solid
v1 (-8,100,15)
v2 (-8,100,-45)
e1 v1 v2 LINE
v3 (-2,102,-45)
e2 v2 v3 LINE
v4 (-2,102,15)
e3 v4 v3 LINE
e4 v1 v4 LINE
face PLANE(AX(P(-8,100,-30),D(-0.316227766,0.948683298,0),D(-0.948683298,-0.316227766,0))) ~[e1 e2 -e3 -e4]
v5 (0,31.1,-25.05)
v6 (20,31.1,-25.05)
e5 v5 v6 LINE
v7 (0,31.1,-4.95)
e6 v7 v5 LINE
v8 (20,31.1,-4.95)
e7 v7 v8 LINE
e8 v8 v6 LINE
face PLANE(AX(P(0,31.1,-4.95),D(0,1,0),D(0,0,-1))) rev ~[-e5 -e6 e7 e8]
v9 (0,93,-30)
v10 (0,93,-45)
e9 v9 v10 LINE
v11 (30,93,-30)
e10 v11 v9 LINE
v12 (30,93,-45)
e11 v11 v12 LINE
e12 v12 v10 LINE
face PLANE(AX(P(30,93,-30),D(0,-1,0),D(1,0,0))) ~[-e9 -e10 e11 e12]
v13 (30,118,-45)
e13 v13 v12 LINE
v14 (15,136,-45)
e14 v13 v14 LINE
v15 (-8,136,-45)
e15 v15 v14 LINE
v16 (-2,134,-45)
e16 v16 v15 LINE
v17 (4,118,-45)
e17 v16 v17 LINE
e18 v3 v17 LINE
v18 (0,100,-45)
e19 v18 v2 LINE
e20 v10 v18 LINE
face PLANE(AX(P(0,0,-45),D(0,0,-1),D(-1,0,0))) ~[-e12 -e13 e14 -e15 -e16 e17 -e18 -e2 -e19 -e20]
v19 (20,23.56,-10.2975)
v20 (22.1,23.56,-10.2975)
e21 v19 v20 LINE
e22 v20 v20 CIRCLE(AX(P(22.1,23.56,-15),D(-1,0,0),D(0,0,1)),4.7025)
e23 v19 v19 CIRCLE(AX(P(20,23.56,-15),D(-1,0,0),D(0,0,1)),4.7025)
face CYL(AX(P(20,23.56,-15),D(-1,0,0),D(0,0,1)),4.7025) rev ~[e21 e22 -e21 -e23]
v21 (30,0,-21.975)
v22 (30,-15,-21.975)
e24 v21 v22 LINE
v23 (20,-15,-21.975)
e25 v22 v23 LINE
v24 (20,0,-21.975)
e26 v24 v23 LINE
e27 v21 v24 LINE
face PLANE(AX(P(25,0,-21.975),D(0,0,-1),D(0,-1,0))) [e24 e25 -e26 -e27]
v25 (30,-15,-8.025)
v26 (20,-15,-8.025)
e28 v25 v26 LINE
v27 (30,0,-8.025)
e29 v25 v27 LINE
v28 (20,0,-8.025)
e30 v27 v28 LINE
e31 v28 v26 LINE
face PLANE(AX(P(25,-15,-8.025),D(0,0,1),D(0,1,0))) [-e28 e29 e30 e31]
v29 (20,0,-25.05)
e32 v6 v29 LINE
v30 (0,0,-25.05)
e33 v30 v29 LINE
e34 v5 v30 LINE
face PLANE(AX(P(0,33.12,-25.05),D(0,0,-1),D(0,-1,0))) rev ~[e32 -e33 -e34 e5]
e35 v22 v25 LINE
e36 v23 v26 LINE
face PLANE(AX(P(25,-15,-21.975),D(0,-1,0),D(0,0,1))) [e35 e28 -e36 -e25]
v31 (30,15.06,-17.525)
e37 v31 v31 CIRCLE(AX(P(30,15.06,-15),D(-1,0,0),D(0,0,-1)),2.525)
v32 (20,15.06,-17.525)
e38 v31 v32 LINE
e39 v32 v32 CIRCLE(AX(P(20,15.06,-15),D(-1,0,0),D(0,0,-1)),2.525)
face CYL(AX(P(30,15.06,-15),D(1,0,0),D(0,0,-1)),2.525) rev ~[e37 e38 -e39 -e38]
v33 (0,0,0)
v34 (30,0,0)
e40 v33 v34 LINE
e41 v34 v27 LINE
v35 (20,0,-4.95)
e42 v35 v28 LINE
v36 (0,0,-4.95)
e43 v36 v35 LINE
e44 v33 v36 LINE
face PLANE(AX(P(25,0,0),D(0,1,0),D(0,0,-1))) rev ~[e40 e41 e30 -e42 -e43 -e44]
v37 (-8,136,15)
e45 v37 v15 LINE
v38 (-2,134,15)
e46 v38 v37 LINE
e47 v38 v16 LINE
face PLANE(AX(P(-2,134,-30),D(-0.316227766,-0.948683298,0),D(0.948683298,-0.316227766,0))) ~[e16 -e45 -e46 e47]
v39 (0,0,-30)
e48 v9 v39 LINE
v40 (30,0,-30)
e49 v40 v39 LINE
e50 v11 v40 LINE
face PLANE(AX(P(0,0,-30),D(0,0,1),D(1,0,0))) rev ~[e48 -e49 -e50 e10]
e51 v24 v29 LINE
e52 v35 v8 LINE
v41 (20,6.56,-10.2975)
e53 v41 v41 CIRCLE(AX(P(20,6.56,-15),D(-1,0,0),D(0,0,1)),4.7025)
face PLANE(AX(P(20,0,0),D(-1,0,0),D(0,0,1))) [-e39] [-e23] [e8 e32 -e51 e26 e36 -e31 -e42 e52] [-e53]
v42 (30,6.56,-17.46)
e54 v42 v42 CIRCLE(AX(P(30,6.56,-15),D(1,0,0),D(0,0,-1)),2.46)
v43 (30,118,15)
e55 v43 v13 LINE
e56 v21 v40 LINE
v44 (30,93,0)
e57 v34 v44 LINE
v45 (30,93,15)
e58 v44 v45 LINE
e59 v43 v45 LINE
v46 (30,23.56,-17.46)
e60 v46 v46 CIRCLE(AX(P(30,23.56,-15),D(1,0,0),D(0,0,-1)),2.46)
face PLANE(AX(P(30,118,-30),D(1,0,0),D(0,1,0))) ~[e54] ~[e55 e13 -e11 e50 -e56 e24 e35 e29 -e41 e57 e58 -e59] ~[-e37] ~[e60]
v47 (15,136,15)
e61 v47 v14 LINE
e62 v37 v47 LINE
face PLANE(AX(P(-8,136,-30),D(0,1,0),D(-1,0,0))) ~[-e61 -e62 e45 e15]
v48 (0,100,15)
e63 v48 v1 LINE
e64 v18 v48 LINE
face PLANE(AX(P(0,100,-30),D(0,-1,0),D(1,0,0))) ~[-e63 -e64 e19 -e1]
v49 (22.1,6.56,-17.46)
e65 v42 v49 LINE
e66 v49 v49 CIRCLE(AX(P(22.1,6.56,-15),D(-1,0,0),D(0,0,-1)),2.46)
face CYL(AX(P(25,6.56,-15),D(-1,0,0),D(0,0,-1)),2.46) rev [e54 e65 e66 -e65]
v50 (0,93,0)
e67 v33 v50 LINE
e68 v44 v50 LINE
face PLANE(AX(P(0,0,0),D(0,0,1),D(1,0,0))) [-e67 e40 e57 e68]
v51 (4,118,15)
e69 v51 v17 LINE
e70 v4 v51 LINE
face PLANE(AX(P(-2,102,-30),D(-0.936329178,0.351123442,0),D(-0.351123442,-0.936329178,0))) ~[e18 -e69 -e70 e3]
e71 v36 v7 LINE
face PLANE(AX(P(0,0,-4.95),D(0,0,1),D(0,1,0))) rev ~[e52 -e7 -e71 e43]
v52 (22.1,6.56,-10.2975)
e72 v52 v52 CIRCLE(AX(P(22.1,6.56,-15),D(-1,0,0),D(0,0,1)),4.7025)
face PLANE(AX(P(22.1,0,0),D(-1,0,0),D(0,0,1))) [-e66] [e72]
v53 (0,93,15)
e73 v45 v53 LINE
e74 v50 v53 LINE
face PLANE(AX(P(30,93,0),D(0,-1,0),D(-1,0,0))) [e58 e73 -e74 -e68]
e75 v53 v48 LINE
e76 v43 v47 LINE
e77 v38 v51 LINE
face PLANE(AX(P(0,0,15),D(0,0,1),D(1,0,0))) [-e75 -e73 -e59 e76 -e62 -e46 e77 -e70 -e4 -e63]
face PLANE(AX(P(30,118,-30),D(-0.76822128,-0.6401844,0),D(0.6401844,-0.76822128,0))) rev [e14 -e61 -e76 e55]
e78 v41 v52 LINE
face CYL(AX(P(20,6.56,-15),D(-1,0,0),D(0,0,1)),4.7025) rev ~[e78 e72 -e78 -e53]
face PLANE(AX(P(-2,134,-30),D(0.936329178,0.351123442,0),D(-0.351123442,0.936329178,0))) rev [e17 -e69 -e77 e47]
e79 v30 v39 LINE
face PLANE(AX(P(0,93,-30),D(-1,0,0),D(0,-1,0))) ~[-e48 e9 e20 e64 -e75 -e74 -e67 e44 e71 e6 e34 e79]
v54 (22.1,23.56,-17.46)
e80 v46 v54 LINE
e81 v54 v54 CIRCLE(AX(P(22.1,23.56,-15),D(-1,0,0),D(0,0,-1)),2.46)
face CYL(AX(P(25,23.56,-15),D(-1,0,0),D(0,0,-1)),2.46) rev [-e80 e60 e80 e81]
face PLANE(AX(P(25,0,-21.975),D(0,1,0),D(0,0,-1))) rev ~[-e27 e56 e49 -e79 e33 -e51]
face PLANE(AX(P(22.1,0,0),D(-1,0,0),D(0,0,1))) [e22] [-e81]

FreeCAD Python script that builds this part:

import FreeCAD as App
import Part
import Sketcher

V = App.Vector
Q = App.Units.Quantity


def add_polygon(sketch, points):
    """Adds a closed chain of lines whose ends are joined by coincident constraints."""
    first, n = sketch.GeometryCount, len(points)
    for a, b in zip(points, points[1:] + points[:1]):
        sketch.addGeometry(Part.LineSegment(App.Vector(*a, 0), App.Vector(*b, 0)), False)
    for i in range(n):
        sketch.addConstraint(Sketcher.Constraint("Coincident", first + i, 2, first + (i + 1) % n, 1))

doc = App.newDocument("Part")
params = doc.addObject("Spreadsheet::Sheet", "Params")
for row, (alias, value) in enumerate([
    ("sketch1_width", "25 mm"),
    ("sketch1_height", "40 mm"),
    ("pad1_length", "30 mm"),
    ("sketch2_diameter", "4.92 mm"),
    ("pocket1_length", "30 mm"),
    ("sketch3_height", "20.1 mm"),
    ("sketch3_width", "33.12 mm"),
    ("pocket2_length", "20 mm"),
    ("sketch4_height", "13.95 mm"),
    ("sketch4_width", "5 mm"),
    ("pad2_length", "15 mm"),
    ("sketch5_diameter", "4.92 mm"),
    ("pocket3_length", "2.1 mm"),
    ("sketch6_diameter", "4.92 mm"),
    ("pocket4_length", "10 mm"),
    ("sketch7_diameter", "4.92 mm"),
    ("pocket5_length", "2.1 mm"),
    ("sketch8_diameter", "4.92 mm"),
    ("sketch8_width", "40 mm"),
    ("sketch8_width2", "15 mm"),
    ("sketch8_height", "30 mm"),
    ("sketch8_height2", "13.95 mm"),
    ("pad3_length", "5 mm"),
    ("sketch9_width", "30 mm"),
    ("pad4_length", "30 mm"),
    ("sketch10_diameter", "5.05 mm"),
    ("pocket6_length", "30 mm"),
    ("sketch11_width", "30 mm"),
    ("sketch11_width2", "23 mm"),
    ("sketch11_width3", "8 mm"),
    ("sketch11_height", "48 mm"),
    ("pad5_length", "30 mm"),
    ("sketch12_width", "2.02 mm"),
    ("sketch12_height", "20.1 mm"),
    ("pad6_length", "20 mm"),
    ("sketch13_height", "25 mm"),
    ("sketch13_width", "8 mm"),
    ("sketch13_width2", "30 mm"),
    ("sketch13_width3", "23 mm"),
    ("sketch13_height2", "7 mm"),
    ("pad7_length", "15 mm"),
], start=1):
    params.set(f"A{row}", alias)
    params.set(f"B{row}", "=" + value)
    params.setAlias(f"B{row}", alias)

body = doc.addObject("PartDesign::Body", "Body")

sketch1 = doc.addObject("Sketcher::SketchObject", "Sketch")
body.addObject(sketch1)
sketch1.AttachmentSupport = (doc.XY_Plane, [""])
sketch1.MapMode = "FlatFace"
add_polygon(sketch1, [(0, 40), (0, 0), (25, 0), (25, 40)])
sketch1.addConstraint([
    Sketcher.Constraint("Vertical", 0),
    Sketcher.Constraint("Horizontal", 1),
    Sketcher.Constraint("Vertical", 2),
    Sketcher.Constraint("Horizontal", 3),
    Sketcher.Constraint("Coincident", 0, 2, -1, 1),
    Sketcher.Constraint("DistanceX", 1, 1, 1, 2, Q("25 mm")),
    Sketcher.Constraint("DistanceY", 0, 2, 0, 1, Q("40 mm")),
])
sketch1.setExpression("Constraints[9]", "Params.sketch1_width")
sketch1.setExpression("Constraints[10]", "Params.sketch1_height")
pad1 = doc.addObject("PartDesign::Pad", "Pad")
body.addObject(pad1)
pad1.Profile = sketch1
pad1.setExpression("Length", "Params.pad1_length")
pad1.Reversed = True

sketch2 = doc.addObject("Sketcher::SketchObject", "Sketch001")
body.addObject(sketch2)
sketch2.AttachmentSupport = (doc.YZ_Plane, [""])
sketch2.MapMode = "FlatFace"
sketch2.AttachmentOffset = App.Placement(V(0, 0, 25), App.Rotation())
sketch2.addGeometry(Part.Circle(V(6.6, -15, 0), V(0, 0, 1), 2.5), False)
sketch2.addConstraint([
    Sketcher.Constraint("Diameter", 0, Q("4.92 mm")),
    Sketcher.Constraint("DistanceY", 0, 3, -1, 1, Q("15 mm")),
    Sketcher.Constraint("DistanceX", -1, 1, 0, 3, Q("6.56 mm")),
])
sketch2.setExpression("Constraints[0]", "Params.sketch2_diameter")
pocket1 = doc.addObject("PartDesign::Pocket", "Pocket")
body.addObject(pocket1)
pocket1.Profile = sketch2
pocket1.setExpression("Length", "Params.pocket1_length")

sketch3 = doc.addObject("Sketcher::SketchObject", "Sketch002")
body.addObject(sketch3)
sketch3.AttachmentSupport = (doc.YZ_Plane, [""])
sketch3.MapMode = "FlatFace"
add_polygon(sketch3, [(0, -25), (0, -5), (33, -5), (33, -25)])
sketch3.addConstraint([
    Sketcher.Constraint("Vertical", 0),
    Sketcher.Constraint("Horizontal", 1),
    Sketcher.Constraint("Vertical", 2),
    Sketcher.Constraint("Horizontal", 3),
    Sketcher.Constraint("PointOnObject", 0, 2, -2),
    Sketcher.Constraint("DistanceY", 0, 1, 0, 2, Q("20.1 mm")),
    Sketcher.Constraint("DistanceX", 1, 1, 1, 2, Q("33.12 mm")),
    Sketcher.Constraint("DistanceY", 0, 2, -1, 1, Q("4.95 mm")),
])
sketch3.setExpression("Constraints[9]", "Params.sketch3_height")
sketch3.setExpression("Constraints[10]", "Params.sketch3_width")
pocket2 = doc.addObject("PartDesign::Pocket", "Pocket001")
body.addObject(pocket2)
pocket2.Profile = sketch3
pocket2.setExpression("Length", "Params.pocket2_length")
pocket2.Reversed = True

sketch4 = doc.addObject("Sketcher::SketchObject", "Sketch003")
body.addObject(sketch4)
sketch4.AttachmentSupport = (doc.XZ_Plane, [""])
sketch4.MapMode = "FlatFace"
add_polygon(sketch4, [(25, -8), (20, -8), (20, -22), (25, -22)])
sketch4.addConstraint([
    Sketcher.Constraint("Horizontal", 0),
    Sketcher.Constraint("Vertical", 1),
    Sketcher.Constraint("Horizontal", 2),
    Sketcher.Constraint("Vertical", 3),
    Sketcher.Constraint("DistanceY", 1, 2, 1, 1, Q("13.95 mm")),
    Sketcher.Constraint("DistanceX", 0, 2, 0, 1, Q("5 mm")),
    Sketcher.Constraint("DistanceX", -1, 1, 0, 2, Q("20 mm")),
    Sketcher.Constraint("DistanceY", 0, 2, -1, 1, Q("8.025 mm")),
])
sketch4.setExpression("Constraints[8]", "Params.sketch4_height")
sketch4.setExpression("Constraints[9]", "Params.sketch4_width")
pad2 = doc.addObject("PartDesign::Pad", "Pad001")
body.addObject(pad2)
pad2.Profile = sketch4
pad2.setExpression("Length", "Params.pad2_length")

sketch5 = doc.addObject("Sketcher::SketchObject", "Sketch004")
body.addObject(sketch5)
sketch5.AttachmentSupport = (doc.YZ_Plane, [""])
sketch5.MapMode = "FlatFace"
sketch5.AttachmentOffset = App.Placement(V(0, 0, 20), App.Rotation())
sketch5.addGeometry([
    Part.Circle(V(6.6, -15, 0), V(0, 0, 1), 4.7),
    Part.Circle(V(6.6, -15, 0), V(0, 0, 1), 2.5),
], False)
sketch5.addConstraint([
    Sketcher.Constraint("Coincident", 1, 3, 0, 3),
    Sketcher.Constraint("Diameter", 0, Q("9.405 mm")),
    Sketcher.Constraint("Diameter", 1, Q("4.92 mm")),
    Sketcher.Constraint("DistanceY", 0, 3, -1, 1, Q("15 mm")),
    Sketcher.Constraint("DistanceX", -1, 1, 0, 3, Q("6.56 mm")),
])
sketch5.setExpression("Constraints[2]", "Params.sketch5_diameter")
pocket3 = doc.addObject("PartDesign::Pocket", "Pocket002")
body.addObject(pocket3)
pocket3.Profile = sketch5
pocket3.setExpression("Length", "Params.pocket3_length")
pocket3.Reversed = True

sketch6 = doc.addObject("Sketcher::SketchObject", "Sketch005")
body.addObject(sketch6)
sketch6.AttachmentSupport = (doc.YZ_Plane, [""])
sketch6.MapMode = "FlatFace"
sketch6.AttachmentOffset = App.Placement(V(0, 0, 25), App.Rotation())
sketch6.addGeometry(Part.Circle(V(23.6, -15, 0), V(0, 0, 1), 2.5), False)
sketch6.addConstraint([
    Sketcher.Constraint("Diameter", 0, Q("4.92 mm")),
    Sketcher.Constraint("DistanceY", 0, 3, -1, 1, Q("15 mm")),
    Sketcher.Constraint("DistanceX", -1, 1, 0, 3, Q("23.56 mm")),
])
sketch6.setExpression("Constraints[0]", "Params.sketch6_diameter")
pocket4 = doc.addObject("PartDesign::Pocket", "Pocket003")
body.addObject(pocket4)
pocket4.Profile = sketch6
pocket4.setExpression("Length", "Params.pocket4_length")

sketch7 = doc.addObject("Sketcher::SketchObject", "Sketch006")
body.addObject(sketch7)
sketch7.AttachmentSupport = (doc.YZ_Plane, [""])
sketch7.MapMode = "FlatFace"
sketch7.AttachmentOffset = App.Placement(V(0, 0, 20), App.Rotation())
sketch7.addGeometry([
    Part.Circle(V(23.6, -15, 0), V(0, 0, 1), 4.7),
    Part.Circle(V(23.6, -15, 0), V(0, 0, 1), 2.5),
], False)
sketch7.addConstraint([
    Sketcher.Constraint("Coincident", 1, 3, 0, 3),
    Sketcher.Constraint("Diameter", 0, Q("9.405 mm")),
    Sketcher.Constraint("Diameter", 1, Q("4.92 mm")),
    Sketcher.Constraint("DistanceY", 0, 3, -1, 1, Q("15 mm")),
    Sketcher.Constraint("DistanceX", -1, 1, 0, 3, Q("23.56 mm")),
])
sketch7.setExpression("Constraints[2]", "Params.sketch7_diameter")
pocket5 = doc.addObject("PartDesign::Pocket", "Pocket004")
body.addObject(pocket5)
pocket5.Profile = sketch7
pocket5.setExpression("Length", "Params.pocket5_length")
pocket5.Reversed = True

sketch8 = doc.addObject("Sketcher::SketchObject", "Sketch007")
body.addObject(sketch8)
sketch8.AttachmentSupport = (doc.YZ_Plane, [""])
sketch8.MapMode = "FlatFace"
sketch8.AttachmentOffset = App.Placement(V(0, 0, 25), App.Rotation())
add_polygon(sketch8, [(0, -30), (40, -30), (40, 0), (0, 0), (0, -8), (-15, -8), (-15, -22), (0, -22)])
sketch8.addGeometry(Part.Circle(V(6.6, -15, 0), V(0, 0, 1), 2.5), False)
sketch8.addGeometry(Part.Circle(V(23.6, -15, 0), V(0, 0, 1), 2.5), False)
sketch8.addConstraint([
    Sketcher.Constraint("Horizontal", 0),
    Sketcher.Constraint("Vertical", 1),
    Sketcher.Constraint("Horizontal", 2),
    Sketcher.Constraint("Vertical", 3),
    Sketcher.Constraint("Horizontal", 4),
    Sketcher.Constraint("Vertical", 5),
    Sketcher.Constraint("Horizontal", 6),
    Sketcher.Constraint("Vertical", 7),
    Sketcher.Constraint("Coincident", 2, 2, -1, 1),
    Sketcher.Constraint("Equal", 8, 9),
    Sketcher.Constraint("PointOnObject", 6, 2, -2),
    Sketcher.Constraint("Horizontal", 8, 3, 9, 3),
    Sketcher.Constraint("Equal", 3, 7),
    Sketcher.Constraint("Diameter", 8, Q("4.92 mm")),
    Sketcher.Constraint("DistanceX", 0, 1, 0, 2, Q("40 mm")),
    Sketcher.Constraint("DistanceX", 4, 2, 4, 1, Q("15 mm")),
    Sketcher.Constraint("DistanceY", 1, 1, 1, 2, Q("30 mm")),
    Sketcher.Constraint("DistanceY", 8, 3, -1, 1, Q("15 mm")),
    Sketcher.Constraint("DistanceX", 8, 3, 9, 3, Q("17 mm")),
    Sketcher.Constraint("DistanceY", 5, 2, 5, 1, Q("13.95 mm")),
    Sketcher.Constraint("DistanceX", -1, 1, 8, 3, Q("6.56 mm")),
])
sketch8.setExpression("Constraints[21]", "Params.sketch8_diameter")
sketch8.setExpression("Constraints[22]", "Params.sketch8_width")
sketch8.setExpression("Constraints[23]", "Params.sketch8_width2")
sketch8.setExpression("Constraints[24]", "Params.sketch8_height")
sketch8.setExpression("Constraints[27]", "Params.sketch8_height2")
pad3 = doc.addObject("PartDesign::Pad", "Pad002")
body.addObject(pad3)
pad3.Profile = sketch8
pad3.setExpression("Length", "Params.pad3_length")

sketch9 = doc.addObject("Sketcher::SketchObject", "Sketch008")
body.addObject(sketch9)
sketch9.AttachmentSupport = (doc.XZ_Plane, [""])
sketch9.MapMode = "FlatFace"
sketch9.AttachmentOffset = App.Placement(V(0, 0, -40), App.Rotation())
add_polygon(sketch9, [(30, -30), (0, -30), (0, 0), (30, 0)])
sketch9.addConstraint([
    Sketcher.Constraint("Horizontal", 0),
    Sketcher.Constraint("Vertical", 1),
    Sketcher.Constraint("Horizontal", 2),
    Sketcher.Constraint("Vertical", 3),
    Sketcher.Constraint("Coincident", 1, 2, -1, 1),
    Sketcher.Constraint("Equal", 2, 1),
    Sketcher.Constraint("DistanceX", 0, 2, 0, 1, Q("30 mm")),
])
sketch9.setExpression("Constraints[10]", "Params.sketch9_width")
pad4 = doc.addObject("PartDesign::Pad", "Pad003")
body.addObject(pad4)
pad4.Profile = sketch9
pad4.setExpression("Length", "Params.pad4_length")
pad4.Reversed = True

sketch10 = doc.addObject("Sketcher::SketchObject", "Sketch009")
body.addObject(sketch10)
sketch10.AttachmentSupport = (doc.YZ_Plane, [""])
sketch10.MapMode = "FlatFace"
sketch10.AttachmentOffset = App.Placement(V(0, 0, 30), App.Rotation())
sketch10.addGeometry(Part.Circle(V(15.1, -15, 0), V(0, 0, 1), 2.5), False)
sketch10.addConstraint([
    Sketcher.Constraint("Diameter", 0, Q("5.05 mm")),
    Sketcher.Constraint("DistanceY", 0, 3, -1, 1, Q("15 mm")),
    Sketcher.Constraint("DistanceX", -1, 1, 0, 3, Q("15.06 mm")),
])
sketch10.setExpression("Constraints[0]", "Params.sketch10_diameter")
pocket6 = doc.addObject("PartDesign::Pocket", "Pocket005")
body.addObject(pocket6)
pocket6.Profile = sketch10
pocket6.setExpression("Length", "Params.pocket6_length")

sketch11 = doc.addObject("Sketcher::SketchObject", "Sketch010")
body.addObject(sketch11)
sketch11.AttachmentSupport = (doc.XY_Plane, [""])
sketch11.MapMode = "FlatFace"
add_polygon(sketch11, [(0, 70), (30, 70), (30, 118), (15, 136), (-8, 136), (-2, 134), (4, 118), (-2, 102), (-8, 100), (0, 100)])
sketch11.addConstraint([
    Sketcher.Constraint("Horizontal", 0),
    Sketcher.Constraint("Vertical", 1),
    Sketcher.Constraint("Horizontal", 3),
    Sketcher.Constraint("Horizontal", 8),
    Sketcher.Constraint("Vertical", 9),
    Sketcher.Constraint("PointOnObject", 8, 2, -2),
    Sketcher.Constraint("Horizontal", 1, 2, 5, 2),
    Sketcher.Constraint("Vertical", 4, 2, 6, 2),
    Sketcher.Constraint("Vertical", 3, 2, 7, 2),
    Sketcher.Constraint("Equal", 0, 9),
    Sketcher.Constraint("Equal", 5, 6),
    Sketcher.Constraint("Equal", 4, 7),
    Sketcher.Constraint("DistanceX", 0, 1, 0, 2, Q("30 mm")),
    Sketcher.Constraint("DistanceX", 3, 2, 3, 1, Q("23 mm")),
    Sketcher.Constraint("DistanceX", 8, 1, 8, 2, Q("8 mm")),
    Sketcher.Constraint("DistanceY", 1, 1, 1, 2, Q("48 mm")),
    Sketcher.Constraint("DistanceY", -1, 1, 0, 2, Q("70 mm")),
    Sketcher.Constraint("DistanceX", 4, 2, -1, 1, Q("2 mm")),
    Sketcher.Constraint("DistanceY", -1, 1, 4, 2, Q("134 mm")),
    Sketcher.Constraint("DistanceX", -1, 1, 5, 2, Q("4 mm")),
])
sketch11.setExpression("Constraints[22]", "Params.sketch11_width")
sketch11.setExpression("Constraints[23]", "Params.sketch11_width2")
sketch11.setExpression("Constraints[24]", "Params.sketch11_width3")
sketch11.setExpression("Constraints[25]", "Params.sketch11_height")
pad5 = doc.addObject("PartDesign::Pad", "Pad004")
body.addObject(pad5)
pad5.Profile = sketch11
pad5.setExpression("Length", "Params.pad5_length")
pad5.Reversed = True

sketch12 = doc.addObject("Sketcher::SketchObject", "Sketch011")
body.addObject(sketch12)
sketch12.AttachmentSupport = (doc.YZ_Plane, [""])
sketch12.MapMode = "FlatFace"
add_polygon(sketch12, [(33.1, -5), (33.1, -25.1), (31.1, -25.1), (31.1, -5)])
sketch12.addConstraint([
    Sketcher.Constraint("Vertical", 0),
    Sketcher.Constraint("Horizontal", 1),
    Sketcher.Constraint("Vertical", 2),
    Sketcher.Constraint("Horizontal", 3),
    Sketcher.Constraint("DistanceX", 1, 2, 1, 1, Q("2.02 mm")),
    Sketcher.Constraint("DistanceY", 0, 2, 0, 1, Q("20.1 mm")),
    Sketcher.Constraint("DistanceX", -1, 1, 1, 2, Q("31.1 mm")),
    Sketcher.Constraint("DistanceY", 0, 2, -1, 1, Q("25.05 mm")),
])
sketch12.setExpression("Constraints[8]", "Params.sketch12_width")
sketch12.setExpression("Constraints[9]", "Params.sketch12_height")
pad6 = doc.addObject("PartDesign::Pad", "Pad005")
body.addObject(pad6)
pad6.Profile = sketch12
pad6.setExpression("Length", "Params.pad6_length")

sketch13 = doc.addObject("Sketcher::SketchObject", "Sketch012")
body.addObject(sketch13)
sketch13.AttachmentSupport = (doc.XY_Plane, [""])
sketch13.MapMode = "FlatFace"
add_polygon(sketch13, [(-8, 100), (0, 100), (0, 93), (30, 93), (30, 118), (15, 136), (-8, 136), (-2, 134), (4, 118), (-2, 102)])
sketch13.addConstraint([
    Sketcher.Constraint("Horizontal", 0),
    Sketcher.Constraint("Vertical", 1),
    Sketcher.Constraint("Horizontal", 2),
    Sketcher.Constraint("Vertical", 3),
    Sketcher.Constraint("Horizontal", 5),
    Sketcher.Constraint("PointOnObject", 0, 2, -2),
    Sketcher.Constraint("Horizontal", 3, 2, 7, 2),
    Sketcher.Constraint("Vertical", 6, 2, 8, 2),
    Sketcher.Constraint("Vertical", 5, 2, 9, 2),
    Sketcher.Constraint("Equal", 7, 8),
    Sketcher.Constraint("Equal", 6, 9),
    Sketcher.Constraint("DistanceY", 3, 1, 3, 2, Q("25 mm")),
    Sketcher.Constraint("DistanceX", 0, 1, 0, 2, Q("8 mm")),
    Sketcher.Constraint("DistanceX", 2, 1, 2, 2, Q("30 mm")),
    Sketcher.Constraint("DistanceX", 5, 2, 5, 1, Q("23 mm")),
    Sketcher.Constraint("DistanceY", 1, 2, 1, 1, Q("7 mm")),
    Sketcher.Constraint("DistanceY", -1, 1, 0, 2, Q("100 mm")),
    Sketcher.Constraint("DistanceX", 6, 2, -1, 1, Q("2 mm")),
    Sketcher.Constraint("DistanceY", -1, 1, 6, 2, Q("134 mm")),
    Sketcher.Constraint("DistanceX", -1, 1, 7, 2, Q("4 mm")),
])
sketch13.setExpression("Constraints[21]", "Params.sketch13_height")
sketch13.setExpression("Constraints[22]", "Params.sketch13_width")
sketch13.setExpression("Constraints[23]", "Params.sketch13_width2")
sketch13.setExpression("Constraints[24]", "Params.sketch13_width3")
sketch13.setExpression("Constraints[25]", "Params.sketch13_height2")
pad7 = doc.addObject("PartDesign::Pad", "Pad006")
body.addObject(pad7)
pad7.Profile = sketch13
pad7.setExpression("Length", "Params.pad7_length")
doc.recompute()

datumplane = doc.addObject("PartDesign::Plane", "DatumPlane")
body.addObject(datumplane)
datumplane.AttachmentSupport = (doc.XY_Plane, [""])
datumplane.MapMode = "FlatFace"
datumplane.AttachmentOffset = App.Placement(V(0, 0, -15), App.Rotation())
mirrored = doc.addObject("PartDesign::Mirrored", "Mirrored")
body.addObject(mirrored)
mirrored.Originals = [pad7]
mirrored.MirrorPlane = (datumplane, [""])
body.Tip = mirrored

doc.recompute()
